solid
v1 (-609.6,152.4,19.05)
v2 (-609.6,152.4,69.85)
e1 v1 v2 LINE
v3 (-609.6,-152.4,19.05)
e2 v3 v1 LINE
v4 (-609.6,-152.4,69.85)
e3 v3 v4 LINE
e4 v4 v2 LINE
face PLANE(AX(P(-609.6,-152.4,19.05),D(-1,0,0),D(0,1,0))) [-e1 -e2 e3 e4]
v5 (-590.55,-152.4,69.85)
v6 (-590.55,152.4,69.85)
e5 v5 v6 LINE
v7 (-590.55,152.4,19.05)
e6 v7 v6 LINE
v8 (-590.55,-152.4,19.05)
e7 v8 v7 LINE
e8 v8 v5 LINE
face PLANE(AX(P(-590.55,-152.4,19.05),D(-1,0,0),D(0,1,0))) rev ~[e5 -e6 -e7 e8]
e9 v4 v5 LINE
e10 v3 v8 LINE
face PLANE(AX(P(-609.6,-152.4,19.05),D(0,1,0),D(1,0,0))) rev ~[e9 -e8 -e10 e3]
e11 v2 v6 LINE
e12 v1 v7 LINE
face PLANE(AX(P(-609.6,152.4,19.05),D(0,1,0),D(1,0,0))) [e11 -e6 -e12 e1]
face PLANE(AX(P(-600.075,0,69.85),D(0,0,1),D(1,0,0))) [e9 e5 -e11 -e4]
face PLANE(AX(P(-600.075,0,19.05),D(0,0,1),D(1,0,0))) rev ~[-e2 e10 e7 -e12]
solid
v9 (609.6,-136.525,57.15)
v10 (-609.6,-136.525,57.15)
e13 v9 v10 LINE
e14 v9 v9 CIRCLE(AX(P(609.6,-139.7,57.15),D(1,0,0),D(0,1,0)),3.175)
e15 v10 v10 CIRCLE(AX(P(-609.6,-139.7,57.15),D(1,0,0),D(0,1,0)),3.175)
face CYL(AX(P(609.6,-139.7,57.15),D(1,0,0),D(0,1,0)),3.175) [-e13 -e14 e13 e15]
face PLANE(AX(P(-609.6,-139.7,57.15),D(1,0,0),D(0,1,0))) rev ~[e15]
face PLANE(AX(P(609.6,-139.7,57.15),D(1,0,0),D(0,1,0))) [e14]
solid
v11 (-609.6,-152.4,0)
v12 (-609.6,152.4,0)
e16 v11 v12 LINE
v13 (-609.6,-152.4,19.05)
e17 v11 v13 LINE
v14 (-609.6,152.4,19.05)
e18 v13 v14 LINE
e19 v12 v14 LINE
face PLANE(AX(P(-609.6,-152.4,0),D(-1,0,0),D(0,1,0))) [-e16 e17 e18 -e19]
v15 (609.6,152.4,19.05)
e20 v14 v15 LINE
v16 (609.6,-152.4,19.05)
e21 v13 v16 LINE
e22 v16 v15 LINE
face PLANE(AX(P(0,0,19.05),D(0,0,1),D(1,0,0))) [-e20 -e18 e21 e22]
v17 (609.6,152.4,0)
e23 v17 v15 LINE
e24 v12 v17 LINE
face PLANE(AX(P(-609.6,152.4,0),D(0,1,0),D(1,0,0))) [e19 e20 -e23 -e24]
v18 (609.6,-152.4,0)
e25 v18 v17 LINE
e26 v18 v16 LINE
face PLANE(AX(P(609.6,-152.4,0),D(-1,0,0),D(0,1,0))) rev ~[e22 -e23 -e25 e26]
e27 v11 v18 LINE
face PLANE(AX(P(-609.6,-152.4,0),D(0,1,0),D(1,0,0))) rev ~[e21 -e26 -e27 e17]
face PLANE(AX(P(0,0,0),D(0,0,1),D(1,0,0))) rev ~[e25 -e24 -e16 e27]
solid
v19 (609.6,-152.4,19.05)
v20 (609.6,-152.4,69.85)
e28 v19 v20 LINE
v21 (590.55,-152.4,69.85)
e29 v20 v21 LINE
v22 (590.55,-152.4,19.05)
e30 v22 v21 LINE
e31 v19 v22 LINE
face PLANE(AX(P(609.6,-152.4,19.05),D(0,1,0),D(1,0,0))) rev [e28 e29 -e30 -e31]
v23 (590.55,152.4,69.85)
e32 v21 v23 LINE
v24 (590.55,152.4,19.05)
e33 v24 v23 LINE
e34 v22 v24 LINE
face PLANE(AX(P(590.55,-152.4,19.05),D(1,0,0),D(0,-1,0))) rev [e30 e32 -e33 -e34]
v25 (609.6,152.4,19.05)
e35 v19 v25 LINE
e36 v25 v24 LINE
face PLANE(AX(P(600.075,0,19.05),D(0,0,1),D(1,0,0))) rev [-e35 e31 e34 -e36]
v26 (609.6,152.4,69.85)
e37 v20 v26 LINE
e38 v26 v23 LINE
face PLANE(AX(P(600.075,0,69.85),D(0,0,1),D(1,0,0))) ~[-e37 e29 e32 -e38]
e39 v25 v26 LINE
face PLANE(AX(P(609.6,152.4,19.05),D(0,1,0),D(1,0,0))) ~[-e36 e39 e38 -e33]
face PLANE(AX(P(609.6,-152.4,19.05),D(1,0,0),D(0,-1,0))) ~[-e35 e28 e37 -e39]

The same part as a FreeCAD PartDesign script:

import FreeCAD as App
import Part
import Sketcher
from FreeCAD import Vector
Q = App.Units.Quantity

doc = App.newDocument("Part")
body = doc.addObject("PartDesign::Body", "Body")

# Sketch on XY plane
sketch1 = body.newObject("Sketcher::SketchObject", "Sketch")
sketch1.AttachmentSupport = (doc.getObject("XY_Plane"), [""])
sketch1.MapMode = "FlatFace"
sketch1.addGeometry(Part.LineSegment(Vector(-610, 152, 0), Vector(-610, -152, 0)), False)
sketch1.addGeometry(Part.LineSegment(Vector(-610, -152, 0), Vector(610, -152, 0)), False)
sketch1.addGeometry(Part.LineSegment(Vector(610, -152, 0), Vector(610, 152, 0)), False)
sketch1.addGeometry(Part.LineSegment(Vector(610, 152, 0), Vector(-610, 152, 0)), False)
sketch1.addConstraint(Sketcher.Constraint("Coincident", 0, 2, 1, 1))
sketch1.addConstraint(Sketcher.Constraint("Coincident", 1, 2, 2, 1))
sketch1.addConstraint(Sketcher.Constraint("Coincident", 2, 2, 3, 1))
sketch1.addConstraint(Sketcher.Constraint("Coincident", 3, 2, 0, 1))
sketch1.addConstraint(Sketcher.Constraint("Vertical", 0))
sketch1.addConstraint(Sketcher.Constraint("Horizontal", 1))
sketch1.addConstraint(Sketcher.Constraint("Vertical", 2))
sketch1.addConstraint(Sketcher.Constraint("Horizontal", 3))
sketch1.addConstraint(Sketcher.Constraint("Symmetric", 0, 2, 2, 2, -1, 1))
sketch1.addConstraint(Sketcher.Constraint("DistanceX", 1, 1, 1, 2, Q("48 in")))
sketch1.addConstraint(Sketcher.Constraint("DistanceY", 0, 2, 0, 1, Q("12 in")))
pad1 = body.newObject("PartDesign::Pad", "Pad")
pad1.Profile = sketch1
pad1.Length = Q("0.75 in")
body2 = doc.addObject("PartDesign::Body", "Body001")

# Sketch on XY plane
sketch2 = body2.newObject("Sketcher::SketchObject", "Sketch001")
sketch2.AttachmentSupport = (doc.getObject("XY_Plane001"), [""])
sketch2.MapMode = "FlatFace"
sketch2.AttachmentOffset = App.Placement(Vector(0, 0, 0.75 * 25.4), App.Rotation())
sketch2.addGeometry(Part.LineSegment(Vector(-610, 152, 0), Vector(-610, -152, 0)), False)
sketch2.addGeometry(Part.LineSegment(Vector(-610, -152, 0), Vector(-591, -152, 0)), False)
sketch2.addGeometry(Part.LineSegment(Vector(-591, -152, 0), Vector(-591, 152, 0)), False)
sketch2.addGeometry(Part.LineSegment(Vector(-591, 152, 0), Vector(-610, 152, 0)), False)
sketch2.addConstraint(Sketcher.Constraint("Coincident", 0, 2, 1, 1))
sketch2.addConstraint(Sketcher.Constraint("Coincident", 1, 2, 2, 1))
sketch2.addConstraint(Sketcher.Constraint("Coincident", 2, 2, 3, 1))
sketch2.addConstraint(Sketcher.Constraint("Coincident", 3, 2, 0, 1))
sketch2.addConstraint(Sketcher.Constraint("Vertical", 0))
sketch2.addConstraint(Sketcher.Constraint("Horizontal", 1))
sketch2.addConstraint(Sketcher.Constraint("Vertical", 2))
sketch2.addConstraint(Sketcher.Constraint("Horizontal", 3))
sketch2.addConstraint(Sketcher.Constraint("DistanceY", 0, 2, 0, 1, Q("12 in")))
sketch2.addConstraint(Sketcher.Constraint("DistanceX", 0, 2, -1, 1, Q("24 in")))
sketch2.addConstraint(Sketcher.Constraint("DistanceY", 0, 2, -1, 1, Q("6 in")))
sketch2.addConstraint(Sketcher.Constraint("DistanceX", 1, 1, 1, 2, Q("0.75 in")))
pad2 = body2.newObject("PartDesign::Pad", "Pad001")
pad2.Profile = sketch2
pad2.Length = Q("2 in")
body3 = doc.addObject("PartDesign::Body", "Body002")
doc.recompute()

mirroring = doc.addObject("Part::Mirroring", "Mirroring")
mirroring.Source = body2
mirroring.Base = Vector(0, 0, 0)
mirroring.Normal = Vector(1, 0, 0)
body3.BaseFeature = mirroring
doc.recompute()
body4 = doc.addObject("PartDesign::Body", "Body003")

# Sketch on YZ plane
sketch3 = body4.newObject("Sketcher::SketchObject", "Sketch002")
sketch3.AttachmentSupport = (doc.getObject("YZ_Plane003"), [""])
sketch3.MapMode = "FlatFace"
sketch3.AttachmentOffset = App.Placement(Vector(0, 0, 24 * 25.4), App.Rotation())
sketch3.addGeometry(Part.Circle(Vector(-139.7, 57.1, 0), Vector(0, 0, 1), 3.2), False)
sketch3.addConstraint(Sketcher.Constraint("Diameter", 0, Q("0.25 in")))
sketch3.addConstraint(Sketcher.Constraint("DistanceX", 0, 3, -1, 1, Q("5.5 in")))
sketch3.addConstraint(Sketcher.Constraint("DistanceY", -1, 1, 0, 3, Q("2.25 in")))
pad3 = body4.newObject("PartDesign::Pad", "Pad002")
pad3.Profile = sketch3
pad3.Length = Q("48 in")
pad3.Reversed = True
mirroring.Visibility = False

doc.recompute()
